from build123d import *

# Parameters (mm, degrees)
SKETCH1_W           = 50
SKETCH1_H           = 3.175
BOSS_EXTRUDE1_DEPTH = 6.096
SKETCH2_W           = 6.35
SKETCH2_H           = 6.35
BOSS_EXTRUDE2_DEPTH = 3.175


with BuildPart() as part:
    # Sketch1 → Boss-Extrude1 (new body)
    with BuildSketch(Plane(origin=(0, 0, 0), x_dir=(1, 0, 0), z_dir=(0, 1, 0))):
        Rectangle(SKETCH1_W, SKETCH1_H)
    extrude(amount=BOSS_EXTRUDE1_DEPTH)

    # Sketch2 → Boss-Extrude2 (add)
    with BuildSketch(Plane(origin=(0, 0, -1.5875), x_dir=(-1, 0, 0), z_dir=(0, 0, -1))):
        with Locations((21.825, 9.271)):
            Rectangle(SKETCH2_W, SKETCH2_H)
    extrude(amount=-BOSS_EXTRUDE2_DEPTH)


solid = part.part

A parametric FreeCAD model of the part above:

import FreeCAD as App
import Part
import Sketcher

V = App.Vector
Q = App.Units.Quantity

doc = App.newDocument("Part")
params = doc.addObject("Spreadsheet::Sheet", "Params")
for row, (alias, value) in enumerate([
    ("sketch1_height", "0.125 in"),
    ("pad1_length", "0.24 in"),
    ("sketch2_width", "0.25 in"),
    ("pad2_length", "0.125 in"),
], start=1):
    params.set(f"A{row}", alias)
    params.set(f"B{row}", "=" + value)
    params.setAlias(f"B{row}", alias)

body = doc.addObject("PartDesign::Body", "Body")

# Sketch on XZ plane
sketch1 = body.newObject("Sketcher::SketchObject", "Sketch")
sketch1.AttachmentSupport = (doc.getObject("XZ_Plane"), [""])
sketch1.MapMode = "FlatFace"
sketch1.addGeometry([
    Part.LineSegment(V(-25, -1.5875, 0), V(-25, 1.5875, 0)),
    Part.LineSegment(V(-25, 1.5875, 0), V(25, 1.5875, 0)),
    Part.LineSegment(V(25, 1.5875, 0), V(25, -1.5875, 0)),
    Part.LineSegment(V(25, -1.5875, 0), V(-25, -1.5875, 0)),
], False)
sketch1.addConstraint([
    Sketcher.Constraint("Coincident", 0, 2, 1, 1),
    Sketcher.Constraint("Coincident", 1, 2, 2, 1),
    Sketcher.Constraint("Coincident", 2, 2, 3, 1),
    Sketcher.Constraint("Coincident", 3, 2, 0, 1),
    Sketcher.Constraint("Vertical", 0),
    Sketcher.Constraint("Horizontal", 1),
    Sketcher.Constraint("Vertical", 2),
    Sketcher.Constraint("Horizontal", 3),
    Sketcher.Constraint("Symmetric", 0, 2, 2, 2, -1, 1),
    Sketcher.Constraint("DistanceY", 0, 1, 0, 2, Q("0.125 in")),
    Sketcher.Constraint("DistanceX", 1, 1, 1, 2, 50.0),
])
sketch1.setExpression("Constraints[9]", "Params.sketch1_height")
pad1 = body.newObject("PartDesign::Pad", "Pad")
pad1.Profile = sketch1
pad1.setExpression("Length", "Params.pad1_length")
pad1.Reversed = True

# Sketch on XY plane
sketch2 = body.newObject("Sketcher::SketchObject", "Sketch001")
sketch2.AttachmentSupport = (doc.getObject("XY_Plane"), [""])
sketch2.MapMode = "FlatFace"
sketch2.AttachmentOffset = App.Placement(V(0, 0, -0.0625 * 25.4), App.Rotation())
sketch2.addGeometry([
    Part.LineSegment(V(-18.65, 12.446, 0), V(-18.65, 6.096, 0)),
    Part.LineSegment(V(-18.65, 6.096, 0), V(-25, 6.096, 0)),
    Part.LineSegment(V(-25, 6.096, 0), V(-25, 12.446, 0)),
    Part.LineSegment(V(-25, 12.446, 0), V(-18.65, 12.446, 0)),
], False)
sketch2.addConstraint([
    Sketcher.Constraint("Coincident", 0, 2, 1, 1),
    Sketcher.Constraint("Coincident", 1, 2, 2, 1),
    Sketcher.Constraint("Coincident", 2, 2, 3, 1),
    Sketcher.Constraint("Coincident", 3, 2, 0, 1),
    Sketcher.Constraint("Vertical", 0),
    Sketcher.Constraint("Horizontal", 1),
    Sketcher.Constraint("Vertical", 2),
    Sketcher.Constraint("Horizontal", 3),
    Sketcher.Constraint("Equal", 3, 0),
    Sketcher.Constraint("DistanceX", 1, 2, 1, 1, Q("0.25 in")),
    Sketcher.Constraint("DistanceY", -1, 1, 0, 2, Q("0.24 in")),
    Sketcher.Constraint("DistanceX", 0, 2, -1, 1, 18.65),
])
sketch2.setExpression("Constraints[9]", "Params.sketch2_width")
pad2 = body.newObject("PartDesign::Pad", "Pad001")
pad2.Profile = sketch2
pad2.setExpression("Length", "Params.pad2_length")

doc.recompute()
